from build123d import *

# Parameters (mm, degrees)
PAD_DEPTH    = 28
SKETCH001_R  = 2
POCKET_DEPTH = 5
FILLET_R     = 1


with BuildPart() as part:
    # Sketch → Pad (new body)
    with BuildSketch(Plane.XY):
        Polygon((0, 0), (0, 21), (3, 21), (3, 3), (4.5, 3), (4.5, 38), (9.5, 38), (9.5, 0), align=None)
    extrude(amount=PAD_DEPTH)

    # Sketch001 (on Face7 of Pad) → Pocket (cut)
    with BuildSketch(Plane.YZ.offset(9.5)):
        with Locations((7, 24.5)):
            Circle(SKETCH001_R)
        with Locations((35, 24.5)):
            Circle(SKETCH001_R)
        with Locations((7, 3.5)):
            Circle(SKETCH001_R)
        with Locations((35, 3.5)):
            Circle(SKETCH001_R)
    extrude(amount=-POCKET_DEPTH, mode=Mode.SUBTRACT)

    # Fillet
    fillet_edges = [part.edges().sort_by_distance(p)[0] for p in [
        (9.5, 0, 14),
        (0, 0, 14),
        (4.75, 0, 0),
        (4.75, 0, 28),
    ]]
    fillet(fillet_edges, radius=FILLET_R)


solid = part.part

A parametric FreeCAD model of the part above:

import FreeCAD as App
import Part
import Sketcher
from FreeCAD import Vector


def edges_at(feature, points):
    """Names of the edges that pass closest to the given points."""
    edges = feature.Shape.Edges
    near = lambda p: min(range(len(edges)), key=lambda i: edges[i].distToShape(Part.Vertex(*p))[0])
    return sorted({f"Edge{near(p) + 1}" for p in points})


def add_polygon(sketch, points):
    """Adds a closed chain of lines whose ends are joined by coincident constraints."""
    first, n = sketch.GeometryCount, len(points)
    for a, b in zip(points, points[1:] + points[:1]):
        sketch.addGeometry(Part.LineSegment(App.Vector(*a, 0), App.Vector(*b, 0)), False)
    for i in range(n):
        sketch.addConstraint(Sketcher.Constraint("Coincident", first + i, 2, first + (i + 1) % n, 1))

doc = App.newDocument("Part")
body = doc.addObject("PartDesign::Body", "Body")

# Sketch on XY plane
sketch1 = body.newObject("Sketcher::SketchObject", "Sketch")
sketch1.AttachmentSupport = (doc.getObject("XY_Plane"), [""])
sketch1.MapMode = "FlatFace"
add_polygon(sketch1, [(0, 21), (0, 0), (9.5, 0), (9.5, 38), (4.5, 38), (4.5, 3), (3, 3), (3, 21)])  # lines 0-7
sketch1.addConstraint([
    Sketcher.Constraint("Vertical", 0),
    Sketcher.Constraint("Horizontal", 1),
    Sketcher.Constraint("Vertical", 2),
    Sketcher.Constraint("Horizontal", 3),
    Sketcher.Constraint("Vertical", 4),
    Sketcher.Constraint("Horizontal", 5),
    Sketcher.Constraint("Vertical", 6),
    Sketcher.Constraint("Horizontal", 7),
    Sketcher.Constraint("Coincident", 0, 2, -1, 1),
    Sketcher.Constraint("DistanceX", 3, 2, 3, 1, 5.0),
    Sketcher.Constraint("DistanceX", 7, 2, 7, 1, 3.0),
    Sketcher.Constraint("DistanceY", 0, 2, 0, 1, 21.0),
    Sketcher.Constraint("DistanceY", 2, 1, 2, 2, 38.0),
    Sketcher.Constraint("DistanceY", 4, 2, 4, 1, 35.0),
    Sketcher.Constraint("DistanceX", 1, 1, 1, 2, 9.5),
])
pad1 = body.newObject("PartDesign::Pad", "Pad")
pad1.Profile = sketch1
pad1.Length = 28

# Sketch on YZ plane
sketch2 = body.newObject("Sketcher::SketchObject", "Sketch001")
sketch2.AttachmentSupport = (doc.getObject("YZ_Plane"), [""])
sketch2.MapMode = "FlatFace"
sketch2.AttachmentOffset = App.Placement(Vector(0, 0, 9.5), App.Rotation())
sketch2.addGeometry([
    Part.Circle(Vector(7, 24.5, 0), Vector(0, 0, 1), 2),
    Part.Circle(Vector(35, 24.5, 0), Vector(0, 0, 1), 2),
    Part.Circle(Vector(7, 3.5, 0), Vector(0, 0, 1), 2),
    Part.Circle(Vector(35, 3.5, 0), Vector(0, 0, 1), 2),
], False)
sketch2.addConstraint([
    Sketcher.Constraint("Equal", 0, 1),
    Sketcher.Constraint("Equal", 1, 2),
    Sketcher.Constraint("Equal", 2, 3),
    Sketcher.Constraint("Horizontal", 0, 3, 1, 3),
    Sketcher.Constraint("Horizontal", 2, 3, 3, 3),
    Sketcher.Constraint("Vertical", 0, 3, 2, 3),
    Sketcher.Constraint("Vertical", 1, 3, 3, 3),
    Sketcher.Constraint("Diameter", 0, 4.0),
    Sketcher.Constraint("DistanceX", -1, 1, 0, 3, 7.0),
    Sketcher.Constraint("DistanceX", -1, 1, 1, 3, 35.0),
    Sketcher.Constraint("DistanceY", 2, 3, 0, 3, 21.0),
    Sketcher.Constraint("DistanceY", -1, 1, 0, 3, 24.5),
])
pocket1 = body.newObject("PartDesign::Pocket", "Pocket")
pocket1.Profile = sketch2
pocket1.Length = 5
doc.recompute()

fillet = body.newObject("PartDesign::Fillet", "Fillet")
fillet.Base = (pocket1, edges_at(pocket1, [
    (9.5, 0, 14),
    (0, 0, 14),
    (4.75, 0, 0),
    (4.75, 0, 28),
]))
fillet.Radius = 1

doc.recompute()
